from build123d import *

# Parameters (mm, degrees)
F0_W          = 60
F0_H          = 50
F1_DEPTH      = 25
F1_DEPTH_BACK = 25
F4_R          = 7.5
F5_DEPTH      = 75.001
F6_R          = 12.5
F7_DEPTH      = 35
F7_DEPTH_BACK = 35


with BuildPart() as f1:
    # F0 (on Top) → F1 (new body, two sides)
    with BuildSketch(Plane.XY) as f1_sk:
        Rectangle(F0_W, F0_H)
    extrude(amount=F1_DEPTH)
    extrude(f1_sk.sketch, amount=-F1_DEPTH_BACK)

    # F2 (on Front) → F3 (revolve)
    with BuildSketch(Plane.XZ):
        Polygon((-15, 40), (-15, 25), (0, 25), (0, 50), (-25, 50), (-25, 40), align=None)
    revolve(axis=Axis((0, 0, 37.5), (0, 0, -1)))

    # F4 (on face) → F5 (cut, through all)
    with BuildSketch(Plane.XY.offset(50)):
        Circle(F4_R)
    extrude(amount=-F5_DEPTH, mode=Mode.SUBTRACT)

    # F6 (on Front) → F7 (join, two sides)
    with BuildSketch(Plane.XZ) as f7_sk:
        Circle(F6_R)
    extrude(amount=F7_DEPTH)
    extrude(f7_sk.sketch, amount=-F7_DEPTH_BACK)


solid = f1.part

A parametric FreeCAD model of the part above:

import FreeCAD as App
import Part
import Sketcher
from FreeCAD import Vector

doc = App.newDocument("Part")
params = doc.addObject("Spreadsheet::Sheet", "Params")
for row, (alias, value) in enumerate([
    ("sketch1_width", "60 mm"),
    ("sketch1_height", "50 mm"),
    ("pad1_length", "25 mm"),
    ("pad1_length2", "25 mm"),
    ("sketch2_width", "15 mm"),
    ("sketch2_width2", "25 mm"),
    ("revolution_angle", "360 deg"),
    ("sketch3_diameter", "15 mm"),
    ("sketch4_diameter", "25 mm"),
    ("pad2_length", "35 mm"),
    ("pad2_length2", "35 mm"),
], start=1):
    params.set(f"A{row}", alias)
    params.set(f"B{row}", "=" + value)
    params.setAlias(f"B{row}", alias)

body = doc.addObject("PartDesign::Body", "Body")

# Sketch on XY plane
sketch1 = body.newObject("Sketcher::SketchObject", "Sketch")
sketch1.AttachmentSupport = (doc.getObject("XY_Plane"), [""])
sketch1.MapMode = "FlatFace"
sketch1.addGeometry(Part.LineSegment(Vector(-30, 25, 0), Vector(-30, -25, 0)), False)
sketch1.addGeometry(Part.LineSegment(Vector(-30, -25, 0), Vector(30, -25, 0)), False)
sketch1.addGeometry(Part.LineSegment(Vector(30, -25, 0), Vector(30, 25, 0)), False)
sketch1.addGeometry(Part.LineSegment(Vector(30, 25, 0), Vector(-30, 25, 0)), False)
sketch1.addConstraint(Sketcher.Constraint("Coincident", 0, 2, 1, 1))
sketch1.addConstraint(Sketcher.Constraint("Coincident", 1, 2, 2, 1))
sketch1.addConstraint(Sketcher.Constraint("Coincident", 2, 2, 3, 1))
sketch1.addConstraint(Sketcher.Constraint("Coincident", 3, 2, 0, 1))
sketch1.addConstraint(Sketcher.Constraint("Vertical", 0))
sketch1.addConstraint(Sketcher.Constraint("Horizontal", 1))
sketch1.addConstraint(Sketcher.Constraint("Vertical", 2))
sketch1.addConstraint(Sketcher.Constraint("Horizontal", 3))
sketch1.addConstraint(Sketcher.Constraint("Symmetric", 0, 2, 2, 2, -1, 1))
sketch1.addConstraint(Sketcher.Constraint("DistanceX", 1, 1, 1, 2, 60.0))
sketch1.addConstraint(Sketcher.Constraint("DistanceY", 0, 2, 0, 1, 50.0))
sketch1.setExpression("Constraints[9]", "Params.sketch1_width")
sketch1.setExpression("Constraints[10]", "Params.sketch1_height")
pad1 = body.newObject("PartDesign::Pad", "Pad")
pad1.Profile = sketch1
pad1.Type = "TwoLengths"
pad1.setExpression("Length", "Params.pad1_length")
pad1.setExpression("Length2", "Params.pad1_length2")

# Sketch on XZ plane
sketch2 = body.newObject("Sketcher::SketchObject", "Sketch001")
sketch2.AttachmentSupport = (doc.getObject("XZ_Plane"), [""])
sketch2.MapMode = "FlatFace"
sketch2.addGeometry(Part.LineSegment(Vector(-15, 40, 0), Vector(-15, 25, 0)), False)
sketch2.addGeometry(Part.LineSegment(Vector(-15, 25, 0), Vector(0, 25, 0)), False)
sketch2.addGeometry(Part.LineSegment(Vector(0, 25, 0), Vector(0, 50, 0)), False)
sketch2.addGeometry(Part.LineSegment(Vector(0, 50, 0), Vector(-25, 50, 0)), False)
sketch2.addGeometry(Part.LineSegment(Vector(-25, 50, 0), Vector(-25, 40, 0)), False)
sketch2.addGeometry(Part.LineSegment(Vector(-25, 40, 0), Vector(-15, 40, 0)), False)
sketch2.addConstraint(Sketcher.Constraint("Coincident", 0, 2, 1, 1))
sketch2.addConstraint(Sketcher.Constraint("Coincident", 1, 2, 2, 1))
sketch2.addConstraint(Sketcher.Constraint("Coincident", 2, 2, 3, 1))
sketch2.addConstraint(Sketcher.Constraint("Coincident", 3, 2, 4, 1))
sketch2.addConstraint(Sketcher.Constraint("Coincident", 4, 2, 5, 1))
sketch2.addConstraint(Sketcher.Constraint("Coincident", 5, 2, 0, 1))
sketch2.addConstraint(Sketcher.Constraint("Vertical", 0))
sketch2.addConstraint(Sketcher.Constraint("Horizontal", 1))
sketch2.addConstraint(Sketcher.Constraint("Vertical", 2))
sketch2.addConstraint(Sketcher.Constraint("Horizontal", 3))
sketch2.addConstraint(Sketcher.Constraint("Vertical", 4))
sketch2.addConstraint(Sketcher.Constraint("Horizontal", 5))
sketch2.addConstraint(Sketcher.Constraint("PointOnObject", 1, 2, -2))
sketch2.addConstraint(Sketcher.Constraint("Equal", 1, 0))
sketch2.addConstraint(Sketcher.Constraint("Equal", 3, 2))
sketch2.addConstraint(Sketcher.Constraint("DistanceX", 1, 1, 1, 2, 15.0))
sketch2.addConstraint(Sketcher.Constraint("DistanceX", 3, 2, 3, 1, 25.0))
sketch2.addConstraint(Sketcher.Constraint("DistanceY", -1, 1, 0, 2, 25.0))
sketch2.setExpression("Constraints[15]", "Params.sketch2_width")
sketch2.setExpression("Constraints[16]", "Params.sketch2_width2")
revolution = body.newObject("PartDesign::Revolution", "Revolution")
revolution.Profile = sketch2
revolution.ReferenceAxis = (sketch2, ["V_Axis"])
revolution.setExpression("Angle", "Params.revolution_angle")

# Sketch on XY plane
sketch3 = body.newObject("Sketcher::SketchObject", "Sketch002")
sketch3.AttachmentSupport = (doc.getObject("XY_Plane"), [""])
sketch3.MapMode = "FlatFace"
sketch3.AttachmentOffset = App.Placement(Vector(0, 0, 50), App.Rotation())
sketch3.addGeometry(Part.Circle(Vector(0, 0, 0), Vector(0, 0, 1), 7.5), False)
sketch3.addConstraint(Sketcher.Constraint("Coincident", 0, 3, -1, 1))
sketch3.addConstraint(Sketcher.Constraint("Diameter", 0, 15.0))
sketch3.setExpression("Constraints[1]", "Params.sketch3_diameter")
pocket1 = body.newObject("PartDesign::Pocket", "Pocket")
pocket1.Profile = sketch3
pocket1.Type = "ThroughAll"

# Sketch on XZ plane
sketch4 = body.newObject("Sketcher::SketchObject", "Sketch003")
sketch4.AttachmentSupport = (doc.getObject("XZ_Plane"), [""])
sketch4.MapMode = "FlatFace"
sketch4.addGeometry(Part.Circle(Vector(0, 0, 0), Vector(0, 0, 1), 12.5), False)
sketch4.addConstraint(Sketcher.Constraint("Coincident", 0, 3, -1, 1))
sketch4.addConstraint(Sketcher.Constraint("Diameter", 0, 25.0))
sketch4.setExpression("Constraints[1]", "Params.sketch4_diameter")
pad2 = body.newObject("PartDesign::Pad", "Pad001")
pad2.Profile = sketch4
pad2.Type = "TwoLengths"
pad2.setExpression("Length", "Params.pad2_length")
pad2.setExpression("Length2", "Params.pad2_length2")

doc.recompute()
